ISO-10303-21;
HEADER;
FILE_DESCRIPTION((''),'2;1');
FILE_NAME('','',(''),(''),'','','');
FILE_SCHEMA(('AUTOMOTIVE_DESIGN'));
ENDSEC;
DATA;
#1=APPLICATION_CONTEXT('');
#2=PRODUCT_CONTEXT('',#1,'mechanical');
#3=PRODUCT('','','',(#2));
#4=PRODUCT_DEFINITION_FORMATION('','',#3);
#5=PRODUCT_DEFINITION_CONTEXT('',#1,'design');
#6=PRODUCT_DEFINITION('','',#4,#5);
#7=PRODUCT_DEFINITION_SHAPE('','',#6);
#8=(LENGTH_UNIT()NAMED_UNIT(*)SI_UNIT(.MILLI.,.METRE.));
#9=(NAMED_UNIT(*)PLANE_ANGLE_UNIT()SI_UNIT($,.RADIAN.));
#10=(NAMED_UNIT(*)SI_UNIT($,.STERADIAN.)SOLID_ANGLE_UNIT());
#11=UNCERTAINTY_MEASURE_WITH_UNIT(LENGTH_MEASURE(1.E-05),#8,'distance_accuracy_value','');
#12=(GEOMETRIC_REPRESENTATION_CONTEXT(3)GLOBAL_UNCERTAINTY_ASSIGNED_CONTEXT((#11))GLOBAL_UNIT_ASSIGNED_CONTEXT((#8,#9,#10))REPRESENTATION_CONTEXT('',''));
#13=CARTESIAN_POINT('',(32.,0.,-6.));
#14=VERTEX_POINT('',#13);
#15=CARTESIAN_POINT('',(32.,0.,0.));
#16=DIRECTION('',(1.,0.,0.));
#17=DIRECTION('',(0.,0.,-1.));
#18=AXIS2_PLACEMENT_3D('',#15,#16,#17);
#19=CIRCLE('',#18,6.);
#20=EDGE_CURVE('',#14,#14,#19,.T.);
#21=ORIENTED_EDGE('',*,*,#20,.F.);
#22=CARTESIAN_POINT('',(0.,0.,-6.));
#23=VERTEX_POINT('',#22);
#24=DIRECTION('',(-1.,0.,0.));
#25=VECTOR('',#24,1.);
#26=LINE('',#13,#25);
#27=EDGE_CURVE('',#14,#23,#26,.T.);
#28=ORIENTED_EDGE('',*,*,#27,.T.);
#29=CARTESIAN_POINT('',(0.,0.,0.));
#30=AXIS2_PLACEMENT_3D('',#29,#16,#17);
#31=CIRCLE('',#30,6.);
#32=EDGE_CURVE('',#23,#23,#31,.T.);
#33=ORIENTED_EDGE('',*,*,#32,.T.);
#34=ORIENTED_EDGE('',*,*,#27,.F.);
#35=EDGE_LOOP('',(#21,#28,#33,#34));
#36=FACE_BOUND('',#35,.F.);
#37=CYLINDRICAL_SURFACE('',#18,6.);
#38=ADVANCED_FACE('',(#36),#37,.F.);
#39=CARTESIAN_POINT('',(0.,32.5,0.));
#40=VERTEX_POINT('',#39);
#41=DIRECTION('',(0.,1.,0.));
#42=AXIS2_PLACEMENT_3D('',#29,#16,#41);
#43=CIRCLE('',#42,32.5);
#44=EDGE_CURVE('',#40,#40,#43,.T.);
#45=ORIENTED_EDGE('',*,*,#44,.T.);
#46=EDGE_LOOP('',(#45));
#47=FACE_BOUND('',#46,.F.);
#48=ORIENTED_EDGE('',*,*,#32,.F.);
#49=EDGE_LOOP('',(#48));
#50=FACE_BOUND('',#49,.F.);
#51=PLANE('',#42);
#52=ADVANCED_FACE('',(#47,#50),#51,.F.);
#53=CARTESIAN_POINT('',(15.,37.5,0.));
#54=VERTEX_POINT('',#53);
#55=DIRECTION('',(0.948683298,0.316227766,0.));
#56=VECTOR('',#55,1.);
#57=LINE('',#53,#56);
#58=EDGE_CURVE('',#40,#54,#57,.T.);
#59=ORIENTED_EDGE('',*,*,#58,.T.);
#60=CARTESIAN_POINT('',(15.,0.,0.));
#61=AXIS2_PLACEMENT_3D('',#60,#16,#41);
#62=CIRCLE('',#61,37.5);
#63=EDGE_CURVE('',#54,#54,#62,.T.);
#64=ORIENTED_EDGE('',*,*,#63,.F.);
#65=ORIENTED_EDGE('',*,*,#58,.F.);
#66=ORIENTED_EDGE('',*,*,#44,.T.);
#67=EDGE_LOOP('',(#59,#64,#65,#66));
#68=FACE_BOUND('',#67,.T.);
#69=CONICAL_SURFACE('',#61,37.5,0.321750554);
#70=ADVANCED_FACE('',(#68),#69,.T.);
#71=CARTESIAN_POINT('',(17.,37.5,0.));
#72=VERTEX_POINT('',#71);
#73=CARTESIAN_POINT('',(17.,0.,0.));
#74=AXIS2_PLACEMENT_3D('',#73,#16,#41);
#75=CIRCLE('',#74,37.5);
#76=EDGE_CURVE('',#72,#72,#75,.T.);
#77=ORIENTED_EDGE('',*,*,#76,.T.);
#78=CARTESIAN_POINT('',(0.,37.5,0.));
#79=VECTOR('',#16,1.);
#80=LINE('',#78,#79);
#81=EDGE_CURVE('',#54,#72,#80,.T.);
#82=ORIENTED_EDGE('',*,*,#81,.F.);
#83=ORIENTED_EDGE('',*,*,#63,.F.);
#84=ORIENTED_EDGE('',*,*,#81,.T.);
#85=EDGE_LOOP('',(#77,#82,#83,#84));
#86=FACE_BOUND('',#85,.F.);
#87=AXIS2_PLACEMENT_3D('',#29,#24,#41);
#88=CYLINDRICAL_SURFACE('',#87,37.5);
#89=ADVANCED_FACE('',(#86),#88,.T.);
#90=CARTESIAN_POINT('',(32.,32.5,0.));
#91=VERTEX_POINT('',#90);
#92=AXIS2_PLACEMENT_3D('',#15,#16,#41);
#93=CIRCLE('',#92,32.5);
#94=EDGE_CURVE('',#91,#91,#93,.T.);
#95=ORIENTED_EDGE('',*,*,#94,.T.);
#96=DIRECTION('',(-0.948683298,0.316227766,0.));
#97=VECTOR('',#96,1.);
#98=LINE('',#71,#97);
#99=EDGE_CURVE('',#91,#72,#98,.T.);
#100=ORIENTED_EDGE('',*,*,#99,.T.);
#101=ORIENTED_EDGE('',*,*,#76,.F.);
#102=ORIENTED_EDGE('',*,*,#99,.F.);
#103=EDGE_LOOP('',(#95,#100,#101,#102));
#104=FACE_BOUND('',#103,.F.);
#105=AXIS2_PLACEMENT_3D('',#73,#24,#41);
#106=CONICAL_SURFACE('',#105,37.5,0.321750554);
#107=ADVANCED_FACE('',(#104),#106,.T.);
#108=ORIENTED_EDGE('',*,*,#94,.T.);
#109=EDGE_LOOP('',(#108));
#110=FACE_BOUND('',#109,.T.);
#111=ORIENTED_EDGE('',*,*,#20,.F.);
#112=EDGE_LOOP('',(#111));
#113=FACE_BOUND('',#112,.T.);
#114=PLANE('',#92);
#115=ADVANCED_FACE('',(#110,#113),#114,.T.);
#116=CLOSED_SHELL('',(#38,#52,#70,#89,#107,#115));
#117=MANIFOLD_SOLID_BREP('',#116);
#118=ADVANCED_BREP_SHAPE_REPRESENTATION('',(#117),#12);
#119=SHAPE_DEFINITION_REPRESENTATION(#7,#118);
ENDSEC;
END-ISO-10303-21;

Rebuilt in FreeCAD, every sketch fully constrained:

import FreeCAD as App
import Part
import Sketcher

V = App.Vector


def edges_at(feature, points):
    """Names of the edges that pass closest to the given points."""
    edges = feature.Shape.Edges
    near = lambda p: min(range(len(edges)), key=lambda i: edges[i].distToShape(Part.Vertex(*p))[0])
    return sorted({f"Edge{near(p) + 1}" for p in points})

doc = App.newDocument("Part")
body = doc.addObject("PartDesign::Body", "Body")

# Sketch on YZ plane
sketch1 = doc.addObject("Sketcher::SketchObject", "Sketch")
body.addObject(sketch1)
sketch1.AttachmentSupport = (doc.YZ_Plane, [""])
sketch1.MapMode = "FlatFace"
sketch1.addGeometry(Part.Circle(V(0, 0, 0), V(0, 0, 1), 37.5), False)
sketch1.addConstraint(Sketcher.Constraint("Coincident", 0, 3, -1, 1))
sketch1.addConstraint(Sketcher.Constraint("Diameter", 0, 75.0))
pad1 = doc.addObject("PartDesign::Pad", "Pad")
body.addObject(pad1)
pad1.Profile = sketch1
pad1.Length = 32
doc.recompute()

chamfer = doc.addObject("PartDesign::Chamfer", "Chamfer")
body.addObject(chamfer)
chamfer.Base = (pad1, edges_at(pad1, [(32, -37.5, 0)]))
chamfer.ChamferType = "Two distances"
chamfer.Size = 5
chamfer.Size2 = 15
chamfer.FlipDirection = True
doc.recompute()

chamfer2 = doc.addObject("PartDesign::Chamfer", "Chamfer001")
body.addObject(chamfer2)
chamfer2.Base = (chamfer, edges_at(chamfer, [(0, -37.5, 0)]))
chamfer2.ChamferType = "Two distances"
chamfer2.Size = 5
chamfer2.Size2 = 15
chamfer2.FlipDirection = True

# Sketch on YZ plane
sketch2 = doc.addObject("Sketcher::SketchObject", "Sketch001")
body.addObject(sketch2)
sketch2.AttachmentSupport = (doc.YZ_Plane, [""])
sketch2.MapMode = "FlatFace"
sketch2.AttachmentOffset = App.Placement(V(0, 0, 32), App.Rotation())
sketch2.addGeometry(Part.Circle(V(0, 0, 0), V(0, 0, 1), 6), False)
sketch2.addConstraint(Sketcher.Constraint("Coincident", 0, 3, -1, 1))
sketch2.addConstraint(Sketcher.Constraint("Diameter", 0, 12.0))
pocket1 = doc.addObject("PartDesign::Pocket", "Pocket")
body.addObject(pocket1)
pocket1.Profile = sketch2
pocket1.Length = 32

doc.recompute()
